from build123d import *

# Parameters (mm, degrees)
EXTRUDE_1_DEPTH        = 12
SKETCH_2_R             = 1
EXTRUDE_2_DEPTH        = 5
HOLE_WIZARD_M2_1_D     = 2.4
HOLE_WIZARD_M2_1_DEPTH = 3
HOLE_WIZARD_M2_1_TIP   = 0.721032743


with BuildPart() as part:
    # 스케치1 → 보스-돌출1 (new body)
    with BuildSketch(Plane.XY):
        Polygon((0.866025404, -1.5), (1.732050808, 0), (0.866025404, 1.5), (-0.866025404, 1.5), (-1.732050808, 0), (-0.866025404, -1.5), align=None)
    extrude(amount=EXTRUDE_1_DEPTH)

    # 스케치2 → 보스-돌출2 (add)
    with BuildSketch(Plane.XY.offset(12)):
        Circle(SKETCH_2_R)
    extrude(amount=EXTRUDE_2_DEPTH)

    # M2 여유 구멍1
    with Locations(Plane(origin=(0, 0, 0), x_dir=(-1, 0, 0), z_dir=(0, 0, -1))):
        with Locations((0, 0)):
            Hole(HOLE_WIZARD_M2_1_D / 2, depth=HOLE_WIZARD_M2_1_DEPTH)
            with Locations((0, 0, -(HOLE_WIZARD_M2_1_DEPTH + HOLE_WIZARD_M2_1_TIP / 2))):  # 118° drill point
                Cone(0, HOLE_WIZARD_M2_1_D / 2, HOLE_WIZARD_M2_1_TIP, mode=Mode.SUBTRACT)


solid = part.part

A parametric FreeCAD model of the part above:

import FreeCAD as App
import Part
import Sketcher
from FreeCAD import Vector
Q = App.Units.Quantity

doc = App.newDocument("Part")
body = doc.addObject("PartDesign::Body", "Body")

# Sketch on XY plane
sketch1 = doc.addObject("Sketcher::SketchObject", "Sketch")
body.addObject(sketch1)
sketch1.AttachmentSupport = (doc.XY_Plane, [""])
sketch1.MapMode = "FlatFace"
sketch1.addGeometry([
    Part.LineSegment(Vector(0.9, -1.5, 0), Vector(1.7, 0, 0)),  # 0
    Part.LineSegment(Vector(1.7, 0, 0), Vector(0.9, 1.5, 0)),  # 1
    Part.LineSegment(Vector(0.9, 1.5, 0), Vector(-0.9, 1.5, 0)),  # 2
    Part.LineSegment(Vector(-0.9, 1.5, 0), Vector(-1.7, 0, 0)),  # 3
    Part.LineSegment(Vector(-1.7, 0, 0), Vector(-0.9, -1.5, 0)),  # 4
    Part.LineSegment(Vector(-0.9, -1.5, 0), Vector(0.9, -1.5, 0)),  # 5
], False)
sketch1.addConstraint([
    Sketcher.Constraint("Coincident", 0, 2, 1, 1),
    Sketcher.Constraint("Coincident", 1, 2, 2, 1),
    Sketcher.Constraint("Coincident", 2, 2, 3, 1),
    Sketcher.Constraint("Coincident", 3, 2, 4, 1),
    Sketcher.Constraint("Coincident", 4, 2, 5, 1),
    Sketcher.Constraint("Coincident", 5, 2, 0, 1),
    Sketcher.Constraint("Horizontal", 2),
    Sketcher.Constraint("Horizontal", 5),
    Sketcher.Constraint("Symmetric", 0, 2, 3, 2, -1, 1),
    Sketcher.Constraint("Symmetric", 1, 2, 4, 2, -1, 1),
    Sketcher.Constraint("PointOnObject", 0, 2, -1),
    Sketcher.Constraint("Parallel", 0, 3),
    Sketcher.Constraint("Vertical", 2, 2, 4, 2),
    Sketcher.Constraint("Angle", 0, Q("60 deg")),
    Sketcher.Constraint("DistanceY", 4, 2, 2, 2, Q("3 mm")),
    Sketcher.Constraint("DistanceX", 2, 2, 2, 1, Q("1.732051 mm")),
])
pad1 = doc.addObject("PartDesign::Pad", "Pad")
body.addObject(pad1)
pad1.Profile = sketch1
pad1.Length = 12

# Sketch on XY plane
sketch2 = doc.addObject("Sketcher::SketchObject", "Sketch001")
body.addObject(sketch2)
sketch2.AttachmentSupport = (doc.XY_Plane, [""])
sketch2.MapMode = "FlatFace"
sketch2.AttachmentOffset = App.Placement(Vector(0, 0, 12), App.Rotation())
sketch2.addGeometry(Part.Circle(Vector(0, 0, 0), Vector(0, 0, 1), 1), False)
sketch2.addConstraint([
    Sketcher.Constraint("Coincident", 0, 3, -1, 1),
    Sketcher.Constraint("Diameter", 0, Q("2 mm")),
])
pad2 = doc.addObject("PartDesign::Pad", "Pad001")
body.addObject(pad2)
pad2.Profile = sketch2
pad2.Length = 5

# Sketch on XY plane
sketch3 = doc.addObject("Sketcher::SketchObject", "Sketch002")
body.addObject(sketch3)
sketch3.AttachmentSupport = (doc.XY_Plane, [""])
sketch3.MapMode = "FlatFace"
sketch3.addGeometry(Part.Circle(Vector(0, 0, 0), Vector(0, 0, 1), 1.2), False)
sketch3.addConstraint([
    Sketcher.Constraint("Coincident", 0, 3, -1, 1),
    Sketcher.Constraint("Diameter", 0, Q("2.4 mm")),
])
doc.recompute()
hole = doc.addObject("PartDesign::Hole", "Hole")
body.addObject(hole)
hole.Profile = sketch3
hole.ThreadType = "None"
hole.Diameter = 2.4
hole.DepthType = "Dimension"
hole.Depth = 3
hole.DrillPoint = "Angled"
hole.DrillPointAngle = 118
hole.Reversed = True

doc.recompute()
